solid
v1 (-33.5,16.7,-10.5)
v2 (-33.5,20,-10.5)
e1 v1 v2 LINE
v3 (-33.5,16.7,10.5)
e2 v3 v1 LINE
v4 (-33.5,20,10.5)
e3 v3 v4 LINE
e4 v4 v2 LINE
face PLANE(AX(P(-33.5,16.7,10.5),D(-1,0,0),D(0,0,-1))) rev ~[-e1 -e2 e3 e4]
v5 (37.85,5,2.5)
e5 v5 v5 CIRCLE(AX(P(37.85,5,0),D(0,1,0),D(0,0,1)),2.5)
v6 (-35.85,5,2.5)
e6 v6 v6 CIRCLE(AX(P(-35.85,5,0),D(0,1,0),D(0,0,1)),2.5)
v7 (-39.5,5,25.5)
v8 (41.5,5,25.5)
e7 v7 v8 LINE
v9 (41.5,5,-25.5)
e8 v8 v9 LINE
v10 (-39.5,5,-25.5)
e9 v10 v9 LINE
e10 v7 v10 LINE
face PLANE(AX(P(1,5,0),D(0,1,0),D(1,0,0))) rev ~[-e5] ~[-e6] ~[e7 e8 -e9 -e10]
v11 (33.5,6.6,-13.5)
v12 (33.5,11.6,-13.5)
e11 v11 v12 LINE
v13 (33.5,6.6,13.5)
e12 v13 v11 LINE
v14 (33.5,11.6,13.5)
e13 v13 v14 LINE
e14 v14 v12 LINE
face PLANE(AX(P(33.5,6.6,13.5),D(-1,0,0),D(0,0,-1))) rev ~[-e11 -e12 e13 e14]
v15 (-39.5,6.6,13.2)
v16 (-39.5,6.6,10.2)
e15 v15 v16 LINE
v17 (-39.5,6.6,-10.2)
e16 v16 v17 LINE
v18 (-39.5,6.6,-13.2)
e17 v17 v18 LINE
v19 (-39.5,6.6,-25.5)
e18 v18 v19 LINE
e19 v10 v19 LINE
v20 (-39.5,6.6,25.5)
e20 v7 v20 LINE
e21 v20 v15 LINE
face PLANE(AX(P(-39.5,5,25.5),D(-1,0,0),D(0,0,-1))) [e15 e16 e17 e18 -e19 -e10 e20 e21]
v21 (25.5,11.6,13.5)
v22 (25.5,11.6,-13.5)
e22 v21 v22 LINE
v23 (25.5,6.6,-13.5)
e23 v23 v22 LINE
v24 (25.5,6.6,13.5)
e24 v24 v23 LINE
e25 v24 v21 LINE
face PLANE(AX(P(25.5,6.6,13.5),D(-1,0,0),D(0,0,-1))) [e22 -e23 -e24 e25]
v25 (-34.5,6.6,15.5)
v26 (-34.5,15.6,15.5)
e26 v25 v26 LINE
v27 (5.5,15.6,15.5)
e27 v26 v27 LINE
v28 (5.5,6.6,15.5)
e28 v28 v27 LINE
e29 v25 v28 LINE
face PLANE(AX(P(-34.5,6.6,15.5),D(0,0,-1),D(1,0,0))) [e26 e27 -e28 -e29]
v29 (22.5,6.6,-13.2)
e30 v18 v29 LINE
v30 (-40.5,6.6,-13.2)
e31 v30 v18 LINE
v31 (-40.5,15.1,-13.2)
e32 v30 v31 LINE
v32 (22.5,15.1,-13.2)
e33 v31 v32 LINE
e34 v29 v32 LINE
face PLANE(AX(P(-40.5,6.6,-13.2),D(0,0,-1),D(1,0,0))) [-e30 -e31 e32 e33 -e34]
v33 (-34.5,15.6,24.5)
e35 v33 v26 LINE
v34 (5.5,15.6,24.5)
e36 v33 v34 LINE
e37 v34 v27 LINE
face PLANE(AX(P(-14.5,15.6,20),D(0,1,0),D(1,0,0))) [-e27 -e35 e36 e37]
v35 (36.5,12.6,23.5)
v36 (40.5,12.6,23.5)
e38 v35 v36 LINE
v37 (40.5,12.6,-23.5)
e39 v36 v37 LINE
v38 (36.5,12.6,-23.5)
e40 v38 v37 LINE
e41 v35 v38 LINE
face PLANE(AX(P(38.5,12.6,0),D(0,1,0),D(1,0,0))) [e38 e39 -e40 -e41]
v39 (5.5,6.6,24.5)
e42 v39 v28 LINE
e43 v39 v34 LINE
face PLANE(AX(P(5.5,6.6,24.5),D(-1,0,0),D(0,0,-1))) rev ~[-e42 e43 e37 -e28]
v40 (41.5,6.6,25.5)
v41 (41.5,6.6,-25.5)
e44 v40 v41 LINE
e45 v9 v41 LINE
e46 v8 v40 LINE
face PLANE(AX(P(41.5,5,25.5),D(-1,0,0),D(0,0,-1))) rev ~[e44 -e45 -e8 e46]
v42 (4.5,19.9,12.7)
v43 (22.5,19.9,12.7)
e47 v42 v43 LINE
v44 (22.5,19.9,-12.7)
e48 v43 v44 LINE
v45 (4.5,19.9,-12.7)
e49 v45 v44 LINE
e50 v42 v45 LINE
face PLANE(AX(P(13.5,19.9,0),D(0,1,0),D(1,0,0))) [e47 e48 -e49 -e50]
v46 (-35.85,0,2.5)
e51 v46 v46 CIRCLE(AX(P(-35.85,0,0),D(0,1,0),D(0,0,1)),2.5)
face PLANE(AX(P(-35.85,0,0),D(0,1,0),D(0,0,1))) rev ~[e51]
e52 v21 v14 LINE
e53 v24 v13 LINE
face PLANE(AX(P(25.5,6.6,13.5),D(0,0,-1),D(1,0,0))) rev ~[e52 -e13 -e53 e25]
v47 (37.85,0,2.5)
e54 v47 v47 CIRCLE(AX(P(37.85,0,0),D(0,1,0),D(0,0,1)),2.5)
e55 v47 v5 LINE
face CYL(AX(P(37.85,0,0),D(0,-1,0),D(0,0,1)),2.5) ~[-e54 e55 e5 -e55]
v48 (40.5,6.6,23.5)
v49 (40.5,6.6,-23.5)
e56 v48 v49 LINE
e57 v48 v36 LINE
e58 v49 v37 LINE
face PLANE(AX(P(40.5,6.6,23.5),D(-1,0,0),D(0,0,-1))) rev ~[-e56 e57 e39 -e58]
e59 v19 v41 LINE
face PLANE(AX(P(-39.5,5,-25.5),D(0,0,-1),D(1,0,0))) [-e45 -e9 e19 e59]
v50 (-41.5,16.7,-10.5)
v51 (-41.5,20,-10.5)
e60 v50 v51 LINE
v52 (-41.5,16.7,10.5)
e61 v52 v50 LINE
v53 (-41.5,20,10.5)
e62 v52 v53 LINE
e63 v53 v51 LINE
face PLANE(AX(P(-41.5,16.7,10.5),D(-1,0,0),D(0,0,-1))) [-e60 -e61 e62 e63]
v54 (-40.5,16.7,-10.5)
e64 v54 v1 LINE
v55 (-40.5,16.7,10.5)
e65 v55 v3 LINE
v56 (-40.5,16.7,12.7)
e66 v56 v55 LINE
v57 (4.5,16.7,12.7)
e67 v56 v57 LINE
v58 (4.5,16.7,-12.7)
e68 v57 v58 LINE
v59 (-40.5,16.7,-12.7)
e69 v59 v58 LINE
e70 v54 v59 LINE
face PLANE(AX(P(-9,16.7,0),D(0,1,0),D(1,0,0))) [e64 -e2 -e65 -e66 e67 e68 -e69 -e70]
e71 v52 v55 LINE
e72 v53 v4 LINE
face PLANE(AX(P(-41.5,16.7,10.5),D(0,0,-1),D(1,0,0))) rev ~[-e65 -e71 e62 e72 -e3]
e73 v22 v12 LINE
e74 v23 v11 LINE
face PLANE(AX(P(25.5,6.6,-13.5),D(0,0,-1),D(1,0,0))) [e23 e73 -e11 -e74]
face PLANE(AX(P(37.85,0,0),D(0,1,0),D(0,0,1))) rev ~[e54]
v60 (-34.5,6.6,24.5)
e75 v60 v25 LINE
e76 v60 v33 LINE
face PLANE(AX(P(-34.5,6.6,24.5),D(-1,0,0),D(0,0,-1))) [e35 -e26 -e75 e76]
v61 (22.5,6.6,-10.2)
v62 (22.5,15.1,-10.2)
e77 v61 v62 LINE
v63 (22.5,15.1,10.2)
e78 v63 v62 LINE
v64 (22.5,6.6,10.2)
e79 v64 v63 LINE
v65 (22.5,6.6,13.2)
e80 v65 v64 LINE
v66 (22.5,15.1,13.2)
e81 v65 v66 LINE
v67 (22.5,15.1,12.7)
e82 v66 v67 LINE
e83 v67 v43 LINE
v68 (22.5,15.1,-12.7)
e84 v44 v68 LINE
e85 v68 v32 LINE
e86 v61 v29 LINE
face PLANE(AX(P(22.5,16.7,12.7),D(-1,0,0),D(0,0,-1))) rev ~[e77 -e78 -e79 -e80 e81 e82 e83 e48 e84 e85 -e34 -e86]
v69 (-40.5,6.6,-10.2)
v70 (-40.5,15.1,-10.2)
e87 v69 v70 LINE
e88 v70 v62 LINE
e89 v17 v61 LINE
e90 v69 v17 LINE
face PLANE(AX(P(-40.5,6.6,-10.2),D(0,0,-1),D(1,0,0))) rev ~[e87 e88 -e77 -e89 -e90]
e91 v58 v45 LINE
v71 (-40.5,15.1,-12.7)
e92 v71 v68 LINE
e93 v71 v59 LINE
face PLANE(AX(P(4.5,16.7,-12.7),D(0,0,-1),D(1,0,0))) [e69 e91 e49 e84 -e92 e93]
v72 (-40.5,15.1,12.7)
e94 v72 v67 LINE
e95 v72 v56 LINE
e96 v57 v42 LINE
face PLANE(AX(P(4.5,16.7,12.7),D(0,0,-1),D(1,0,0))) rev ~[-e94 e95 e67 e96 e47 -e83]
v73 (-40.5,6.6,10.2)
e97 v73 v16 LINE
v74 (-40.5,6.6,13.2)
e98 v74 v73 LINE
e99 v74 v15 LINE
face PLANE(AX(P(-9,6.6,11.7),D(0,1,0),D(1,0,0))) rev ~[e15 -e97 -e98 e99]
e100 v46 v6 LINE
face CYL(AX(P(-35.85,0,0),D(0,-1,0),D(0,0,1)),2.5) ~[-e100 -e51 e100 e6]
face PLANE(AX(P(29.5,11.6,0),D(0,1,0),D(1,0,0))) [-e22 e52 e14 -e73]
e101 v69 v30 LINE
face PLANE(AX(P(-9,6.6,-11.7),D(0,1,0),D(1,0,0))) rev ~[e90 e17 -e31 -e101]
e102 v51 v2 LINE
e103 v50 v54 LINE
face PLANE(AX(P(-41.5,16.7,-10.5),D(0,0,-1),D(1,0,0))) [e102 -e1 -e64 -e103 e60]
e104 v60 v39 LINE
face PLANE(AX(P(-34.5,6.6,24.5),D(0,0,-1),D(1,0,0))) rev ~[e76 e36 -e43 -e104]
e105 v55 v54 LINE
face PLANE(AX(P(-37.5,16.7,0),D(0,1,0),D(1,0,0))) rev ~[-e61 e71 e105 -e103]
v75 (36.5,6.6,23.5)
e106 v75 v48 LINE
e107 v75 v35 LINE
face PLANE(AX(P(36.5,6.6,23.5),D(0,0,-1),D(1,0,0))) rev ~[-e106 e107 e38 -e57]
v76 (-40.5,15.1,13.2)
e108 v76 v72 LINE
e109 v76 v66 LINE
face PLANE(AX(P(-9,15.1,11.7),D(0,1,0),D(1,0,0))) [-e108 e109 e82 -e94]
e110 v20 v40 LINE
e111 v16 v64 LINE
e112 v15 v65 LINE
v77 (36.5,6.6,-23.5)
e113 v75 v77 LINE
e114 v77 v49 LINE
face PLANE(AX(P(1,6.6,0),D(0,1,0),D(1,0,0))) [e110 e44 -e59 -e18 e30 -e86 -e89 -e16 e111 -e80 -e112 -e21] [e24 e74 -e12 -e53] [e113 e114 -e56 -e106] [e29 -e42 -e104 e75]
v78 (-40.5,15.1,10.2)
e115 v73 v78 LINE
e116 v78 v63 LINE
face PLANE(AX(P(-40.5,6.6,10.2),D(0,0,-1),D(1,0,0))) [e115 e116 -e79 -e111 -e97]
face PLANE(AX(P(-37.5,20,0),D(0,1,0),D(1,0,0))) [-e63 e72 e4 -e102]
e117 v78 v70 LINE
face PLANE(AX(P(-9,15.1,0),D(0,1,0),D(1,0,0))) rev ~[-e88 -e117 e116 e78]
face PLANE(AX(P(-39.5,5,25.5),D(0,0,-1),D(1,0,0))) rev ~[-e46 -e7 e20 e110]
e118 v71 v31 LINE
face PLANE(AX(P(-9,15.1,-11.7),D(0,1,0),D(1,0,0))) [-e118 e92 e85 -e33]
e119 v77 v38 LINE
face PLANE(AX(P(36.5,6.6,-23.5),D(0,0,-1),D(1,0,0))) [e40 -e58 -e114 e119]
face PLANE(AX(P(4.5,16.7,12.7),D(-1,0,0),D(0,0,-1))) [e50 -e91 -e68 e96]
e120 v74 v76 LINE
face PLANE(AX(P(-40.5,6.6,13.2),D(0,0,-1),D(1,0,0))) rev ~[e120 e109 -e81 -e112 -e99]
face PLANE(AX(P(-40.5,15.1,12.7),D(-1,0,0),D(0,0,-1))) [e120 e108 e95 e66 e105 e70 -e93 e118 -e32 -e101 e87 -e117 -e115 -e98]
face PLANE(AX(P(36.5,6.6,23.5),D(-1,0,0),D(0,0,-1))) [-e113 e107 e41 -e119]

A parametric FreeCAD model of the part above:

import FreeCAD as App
import Part
import Sketcher

doc = App.newDocument("Part")
body = doc.addObject("PartDesign::Body", "Body")

# Sketch on XZ plane
sketch1 = body.newObject("Sketcher::SketchObject", "Sketch")
sketch1.AttachmentSupport = (doc.getObject("XZ_Plane"), [""])
sketch1.MapMode = "FlatFace"
sketch1.addGeometry(Part.Circle(App.Vector(-35.85, 0, 0), App.Vector(0, 0, 1), 2.5), False)
sketch1.addConstraint(Sketcher.Constraint("PointOnObject", 0, 3, -1))
sketch1.addConstraint(Sketcher.Constraint("Diameter", 0, 5.0))
sketch1.addConstraint(Sketcher.Constraint("DistanceX", 0, 3, -1, 1, 35.85))
pad1 = body.newObject("PartDesign::Pad", "Pad")
pad1.Profile = sketch1
pad1.Length = 5
pad1.Reversed = True
body2 = doc.addObject("PartDesign::Body", "Body001")

# Sketch on XZ plane
sketch2 = body2.newObject("Sketcher::SketchObject", "Sketch001")
sketch2.AttachmentSupport = (doc.getObject("XZ_Plane001"), [""])
sketch2.MapMode = "FlatFace"
sketch2.addGeometry(Part.Circle(App.Vector(37.85, 0, 0), App.Vector(0, 0, 1), 2.5), False)
sketch2.addConstraint(Sketcher.Constraint("PointOnObject", 0, 3, -1))
sketch2.addConstraint(Sketcher.Constraint("Diameter", 0, 5.0))
sketch2.addConstraint(Sketcher.Constraint("DistanceX", -1, 1, 0, 3, 37.85))
pad2 = body2.newObject("PartDesign::Pad", "Pad001")
pad2.Profile = sketch2
pad2.Length = 5
pad2.Reversed = True
body.AllowCompound = True
doc.recompute()

boolean = body.newObject("PartDesign::Boolean", "Boolean")
boolean.Type = "Fuse"
boolean.addObjects([body2])

# Sketch on XZ plane
sketch3 = body.newObject("Sketcher::SketchObject", "Sketch002")
sketch3.AttachmentSupport = (doc.getObject("XZ_Plane"), [""])
sketch3.MapMode = "FlatFace"
sketch3.AttachmentOffset = App.Placement(App.Vector(0, 0, -5), App.Rotation())
sketch3.addGeometry(Part.LineSegment(App.Vector(-39.5, -25.5, 0), App.Vector(-39.5, 25.5, 0)), False)
sketch3.addGeometry(Part.LineSegment(App.Vector(-39.5, 25.5, 0), App.Vector(41.5, 25.5, 0)), False)
sketch3.addGeometry(Part.LineSegment(App.Vector(41.5, 25.5, 0), App.Vector(41.5, -25.5, 0)), False)
sketch3.addGeometry(Part.LineSegment(App.Vector(41.5, -25.5, 0), App.Vector(-39.5, -25.5, 0)), False)
sketch3.addConstraint(Sketcher.Constraint("Coincident", 0, 2, 1, 1))
sketch3.addConstraint(Sketcher.Constraint("Coincident", 1, 2, 2, 1))
sketch3.addConstraint(Sketcher.Constraint("Coincident", 2, 2, 3, 1))
sketch3.addConstraint(Sketcher.Constraint("Coincident", 3, 2, 0, 1))
sketch3.addConstraint(Sketcher.Constraint("Vertical", 0))
sketch3.addConstraint(Sketcher.Constraint("Horizontal", 1))
sketch3.addConstraint(Sketcher.Constraint("Vertical", 2))
sketch3.addConstraint(Sketcher.Constraint("Horizontal", 3))
sketch3.addConstraint(Sketcher.Constraint("DistanceX", 1, 1, 1, 2, 81.0))
sketch3.addConstraint(Sketcher.Constraint("DistanceY", 0, 1, 0, 2, 51.0))
sketch3.addConstraint(Sketcher.Constraint("DistanceX", 0, 2, -1, 1, 39.5))
sketch3.addConstraint(Sketcher.Constraint("DistanceY", -1, 1, 0, 2, 25.5))
pad3 = body.newObject("PartDesign::Pad", "Pad002")
pad3.Profile = sketch3
pad3.Length = 1.6
pad3.Reversed = True

# Sketch on XZ plane
sketch4 = body.newObject("Sketcher::SketchObject", "Sketch003")
sketch4.AttachmentSupport = (doc.getObject("XZ_Plane"), [""])
sketch4.MapMode = "FlatFace"
sketch4.AttachmentOffset = App.Placement(App.Vector(0, 0, -6.6), App.Rotation())
sketch4.addGeometry(Part.LineSegment(App.Vector(-40.5, -13.2, 0), App.Vector(-40.5, -10.2, 0)), False)
sketch4.addGeometry(Part.LineSegment(App.Vector(-40.5, -10.2, 0), App.Vector(22.5, -10.2, 0)), False)
sketch4.addGeometry(Part.LineSegment(App.Vector(22.5, -10.2, 0), App.Vector(22.5, -13.2, 0)), False)
sketch4.addGeometry(Part.LineSegment(App.Vector(22.5, -13.2, 0), App.Vector(-40.5, -13.2, 0)), False)
sketch4.addConstraint(Sketcher.Constraint("Coincident", 0, 2, 1, 1))
sketch4.addConstraint(Sketcher.Constraint("Coincident", 1, 2, 2, 1))
sketch4.addConstraint(Sketcher.Constraint("Coincident", 2, 2, 3, 1))
sketch4.addConstraint(Sketcher.Constraint("Coincident", 3, 2, 0, 1))
sketch4.addConstraint(Sketcher.Constraint("Vertical", 0))
sketch4.addConstraint(Sketcher.Constraint("Horizontal", 1))
sketch4.addConstraint(Sketcher.Constraint("Vertical", 2))
sketch4.addConstraint(Sketcher.Constraint("Horizontal", 3))
sketch4.addConstraint(Sketcher.Constraint("DistanceX", 1, 1, 1, 2, 63.0))
sketch4.addConstraint(Sketcher.Constraint("DistanceY", 0, 1, 0, 2, 3.0))
sketch4.addConstraint(Sketcher.Constraint("DistanceX", 0, 2, -1, 1, 40.5))
sketch4.addConstraint(Sketcher.Constraint("DistanceY", 0, 2, -1, 1, 10.2))
pad4 = body.newObject("PartDesign::Pad", "Pad003")
pad4.Profile = sketch4
pad4.Length = 8.5
pad4.Reversed = True

# Sketch on XZ plane
sketch5 = body.newObject("Sketcher::SketchObject", "Sketch004")
sketch5.AttachmentSupport = (doc.getObject("XZ_Plane"), [""])
sketch5.MapMode = "FlatFace"
sketch5.AttachmentOffset = App.Placement(App.Vector(0, 0, -6.6), App.Rotation())
sketch5.addGeometry(Part.LineSegment(App.Vector(-40.5, 10.2, 0), App.Vector(-40.5, 13.2, 0)), False)
sketch5.addGeometry(Part.LineSegment(App.Vector(-40.5, 13.2, 0), App.Vector(22.5, 13.2, 0)), False)
sketch5.addGeometry(Part.LineSegment(App.Vector(22.5, 13.2, 0), App.Vector(22.5, 10.2, 0)), False)
sketch5.addGeometry(Part.LineSegment(App.Vector(22.5, 10.2, 0), App.Vector(-40.5, 10.2, 0)), False)
sketch5.addConstraint(Sketcher.Constraint("Coincident", 0, 2, 1, 1))
sketch5.addConstraint(Sketcher.Constraint("Coincident", 1, 2, 2, 1))
sketch5.addConstraint(Sketcher.Constraint("Coincident", 2, 2, 3, 1))
sketch5.addConstraint(Sketcher.Constraint("Coincident", 3, 2, 0, 1))
sketch5.addConstraint(Sketcher.Constraint("Vertical", 0))
sketch5.addConstraint(Sketcher.Constraint("Horizontal", 1))
sketch5.addConstraint(Sketcher.Constraint("Vertical", 2))
sketch5.addConstraint(Sketcher.Constraint("Horizontal", 3))
sketch5.addConstraint(Sketcher.Constraint("DistanceX", 1, 1, 1, 2, 63.0))
sketch5.addConstraint(Sketcher.Constraint("DistanceY", 0, 1, 0, 2, 3.0))
sketch5.addConstraint(Sketcher.Constraint("DistanceX", 0, 2, -1, 1, 40.5))
sketch5.addConstraint(Sketcher.Constraint("DistanceY", -1, 1, 0, 2, 13.2))
pad5 = body.newObject("PartDesign::Pad", "Pad004")
pad5.Profile = sketch5
pad5.Length = 8.5
pad5.Reversed = True

# Sketch on XZ plane
sketch6 = body.newObject("Sketcher::SketchObject", "Sketch005")
sketch6.AttachmentSupport = (doc.getObject("XZ_Plane"), [""])
sketch6.MapMode = "FlatFace"
sketch6.AttachmentOffset = App.Placement(App.Vector(0, 0, -15.1), App.Rotation())
sketch6.addGeometry(Part.LineSegment(App.Vector(-40.5, -12.7, 0), App.Vector(-40.5, 12.7, 0)), False)
sketch6.addGeometry(Part.LineSegment(App.Vector(-40.5, 12.7, 0), App.Vector(22.5, 12.7, 0)), False)
sketch6.addGeometry(Part.LineSegment(App.Vector(22.5, 12.7, 0), App.Vector(22.5, -12.7, 0)), False)
sketch6.addGeometry(Part.LineSegment(App.Vector(22.5, -12.7, 0), App.Vector(-40.5, -12.7, 0)), False)
sketch6.addConstraint(Sketcher.Constraint("Coincident", 0, 2, 1, 1))
sketch6.addConstraint(Sketcher.Constraint("Coincident", 1, 2, 2, 1))
sketch6.addConstraint(Sketcher.Constraint("Coincident", 2, 2, 3, 1))
sketch6.addConstraint(Sketcher.Constraint("Coincident", 3, 2, 0, 1))
sketch6.addConstraint(Sketcher.Constraint("Vertical", 0))
sketch6.addConstraint(Sketcher.Constraint("Horizontal", 1))
sketch6.addConstraint(Sketcher.Constraint("Vertical", 2))
sketch6.addConstraint(Sketcher.Constraint("Horizontal", 3))
sketch6.addConstraint(Sketcher.Constraint("DistanceX", 1, 1, 1, 2, 63.0))
sketch6.addConstraint(Sketcher.Constraint("DistanceY", 0, 1, 0, 2, 25.4))
sketch6.addConstraint(Sketcher.Constraint("DistanceX", 0, 2, -1, 1, 40.5))
sketch6.addConstraint(Sketcher.Constraint("DistanceY", -1, 1, 0, 2, 12.7))
pad6 = body.newObject("PartDesign::Pad", "Pad005")
pad6.Profile = sketch6
pad6.Length = 1.6
pad6.Reversed = True

# Sketch on XZ plane
sketch7 = body.newObject("Sketcher::SketchObject", "Sketch006")
sketch7.AttachmentSupport = (doc.getObject("XZ_Plane"), [""])
sketch7.MapMode = "FlatFace"
sketch7.AttachmentOffset = App.Placement(App.Vector(0, 0, -16.7), App.Rotation())
sketch7.addGeometry(Part.LineSegment(App.Vector(4.5, -12.7, 0), App.Vector(4.5, 12.7, 0)), False)
sketch7.addGeometry(Part.LineSegment(App.Vector(4.5, 12.7, 0), App.Vector(22.5, 12.7, 0)), False)
sketch7.addGeometry(Part.LineSegment(App.Vector(22.5, 12.7, 0), App.Vector(22.5, -12.7, 0)), False)
sketch7.addGeometry(Part.LineSegment(App.Vector(22.5, -12.7, 0), App.Vector(4.5, -12.7, 0)), False)
sketch7.addConstraint(Sketcher.Constraint("Coincident", 0, 2, 1, 1))
sketch7.addConstraint(Sketcher.Constraint("Coincident", 1, 2, 2, 1))
sketch7.addConstraint(Sketcher.Constraint("Coincident", 2, 2, 3, 1))
sketch7.addConstraint(Sketcher.Constraint("Coincident", 3, 2, 0, 1))
sketch7.addConstraint(Sketcher.Constraint("Vertical", 0))
sketch7.addConstraint(Sketcher.Constraint("Horizontal", 1))
sketch7.addConstraint(Sketcher.Constraint("Vertical", 2))
sketch7.addConstraint(Sketcher.Constraint("Horizontal", 3))
sketch7.addConstraint(Sketcher.Constraint("DistanceX", 1, 1, 1, 2, 18.0))
sketch7.addConstraint(Sketcher.Constraint("DistanceY", 0, 1, 0, 2, 25.4))
sketch7.addConstraint(Sketcher.Constraint("DistanceX", -1, 1, 0, 2, 4.5))
sketch7.addConstraint(Sketcher.Constraint("DistanceY", -1, 1, 0, 2, 12.7))
pad7 = body.newObject("PartDesign::Pad", "Pad006")
pad7.Profile = sketch7
pad7.Length = 3.2
pad7.Reversed = True

# Sketch on XZ plane
sketch8 = body.newObject("Sketcher::SketchObject", "Sketch007")
sketch8.AttachmentSupport = (doc.getObject("XZ_Plane"), [""])
sketch8.MapMode = "FlatFace"
sketch8.AttachmentOffset = App.Placement(App.Vector(0, 0, -16.7), App.Rotation())
sketch8.addGeometry(Part.LineSegment(App.Vector(-41.5, -10.5, 0), App.Vector(-41.5, 10.5, 0)), False)
sketch8.addGeometry(Part.LineSegment(App.Vector(-41.5, 10.5, 0), App.Vector(-33.5, 10.5, 0)), False)
sketch8.addGeometry(Part.LineSegment(App.Vector(-33.5, 10.5, 0), App.Vector(-33.5, -10.5, 0)), False)
sketch8.addGeometry(Part.LineSegment(App.Vector(-33.5, -10.5, 0), App.Vector(-41.5, -10.5, 0)), False)
sketch8.addConstraint(Sketcher.Constraint("Coincident", 0, 2, 1, 1))
sketch8.addConstraint(Sketcher.Constraint("Coincident", 1, 2, 2, 1))
sketch8.addConstraint(Sketcher.Constraint("Coincident", 2, 2, 3, 1))
sketch8.addConstraint(Sketcher.Constraint("Coincident", 3, 2, 0, 1))
sketch8.addConstraint(Sketcher.Constraint("Vertical", 0))
sketch8.addConstraint(Sketcher.Constraint("Horizontal", 1))
sketch8.addConstraint(Sketcher.Constraint("Vertical", 2))
sketch8.addConstraint(Sketcher.Constraint("Horizontal", 3))
sketch8.addConstraint(Sketcher.Constraint("DistanceX", 1, 1, 1, 2, 8.0))
sketch8.addConstraint(Sketcher.Constraint("DistanceY", 0, 1, 0, 2, 21.0))
sketch8.addConstraint(Sketcher.Constraint("DistanceX", 0, 2, -1, 1, 41.5))
sketch8.addConstraint(Sketcher.Constraint("DistanceY", -1, 1, 0, 2, 10.5))
pad8 = body.newObject("PartDesign::Pad", "Pad007")
pad8.Profile = sketch8
pad8.Length = 3.3
pad8.Reversed = True

# Sketch on XZ plane
sketch9 = body.newObject("Sketcher::SketchObject", "Sketch008")
sketch9.AttachmentSupport = (doc.getObject("XZ_Plane"), [""])
sketch9.MapMode = "FlatFace"
sketch9.AttachmentOffset = App.Placement(App.Vector(0, 0, -6.6), App.Rotation())
sketch9.addGeometry(Part.LineSegment(App.Vector(25.5, -13.5, 0), App.Vector(25.5, 13.5, 0)), False)
sketch9.addGeometry(Part.LineSegment(App.Vector(25.5, 13.5, 0), App.Vector(33.5, 13.5, 0)), False)
sketch9.addGeometry(Part.LineSegment(App.Vector(33.5, 13.5, 0), App.Vector(33.5, -13.5, 0)), False)
sketch9.addGeometry(Part.LineSegment(App.Vector(33.5, -13.5, 0), App.Vector(25.5, -13.5, 0)), False)
sketch9.addConstraint(Sketcher.Constraint("Coincident", 0, 2, 1, 1))
sketch9.addConstraint(Sketcher.Constraint("Coincident", 1, 2, 2, 1))
sketch9.addConstraint(Sketcher.Constraint("Coincident", 2, 2, 3, 1))
sketch9.addConstraint(Sketcher.Constraint("Coincident", 3, 2, 0, 1))
sketch9.addConstraint(Sketcher.Constraint("Vertical", 0))
sketch9.addConstraint(Sketcher.Constraint("Horizontal", 1))
sketch9.addConstraint(Sketcher.Constraint("Vertical", 2))
sketch9.addConstraint(Sketcher.Constraint("Horizontal", 3))
sketch9.addConstraint(Sketcher.Constraint("DistanceX", 1, 1, 1, 2, 8.0))
sketch9.addConstraint(Sketcher.Constraint("DistanceY", 0, 1, 0, 2, 27.0))
sketch9.addConstraint(Sketcher.Constraint("DistanceX", -1, 1, 0, 2, 25.5))
sketch9.addConstraint(Sketcher.Constraint("DistanceY", -1, 1, 0, 2, 13.5))
pad9 = body.newObject("PartDesign::Pad", "Pad008")
pad9.Profile = sketch9
pad9.Length = 5
pad9.Reversed = True

# Sketch on XZ plane
sketch10 = body.newObject("Sketcher::SketchObject", "Sketch009")
sketch10.AttachmentSupport = (doc.getObject("XZ_Plane"), [""])
sketch10.MapMode = "FlatFace"
sketch10.AttachmentOffset = App.Placement(App.Vector(0, 0, -6.6), App.Rotation())
sketch10.addGeometry(Part.LineSegment(App.Vector(36.5, -23.5, 0), App.Vector(36.5, 23.5, 0)), False)
sketch10.addGeometry(Part.LineSegment(App.Vector(36.5, 23.5, 0), App.Vector(40.5, 23.5, 0)), False)
sketch10.addGeometry(Part.LineSegment(App.Vector(40.5, 23.5, 0), App.Vector(40.5, -23.5, 0)), False)
sketch10.addGeometry(Part.LineSegment(App.Vector(40.5, -23.5, 0), App.Vector(36.5, -23.5, 0)), False)
sketch10.addConstraint(Sketcher.Constraint("Coincident", 0, 2, 1, 1))
sketch10.addConstraint(Sketcher.Constraint("Coincident", 1, 2, 2, 1))
sketch10.addConstraint(Sketcher.Constraint("Coincident", 2, 2, 3, 1))
sketch10.addConstraint(Sketcher.Constraint("Coincident", 3, 2, 0, 1))
sketch10.addConstraint(Sketcher.Constraint("Vertical", 0))
sketch10.addConstraint(Sketcher.Constraint("Horizontal", 1))
sketch10.addConstraint(Sketcher.Constraint("Vertical", 2))
sketch10.addConstraint(Sketcher.Constraint("Horizontal", 3))
sketch10.addConstraint(Sketcher.Constraint("DistanceX", 1, 1, 1, 2, 4.0))
sketch10.addConstraint(Sketcher.Constraint("DistanceY", 0, 1, 0, 2, 47.0))
sketch10.addConstraint(Sketcher.Constraint("DistanceX", -1, 1, 0, 2, 36.5))
sketch10.addConstraint(Sketcher.Constraint("DistanceY", -1, 1, 0, 2, 23.5))
pad10 = body.newObject("PartDesign::Pad", "Pad009")
pad10.Profile = sketch10
pad10.Length = 6
pad10.Reversed = True

# Sketch on XZ plane
sketch11 = body.newObject("Sketcher::SketchObject", "Sketch010")
sketch11.AttachmentSupport = (doc.getObject("XZ_Plane"), [""])
sketch11.MapMode = "FlatFace"
sketch11.AttachmentOffset = App.Placement(App.Vector(0, 0, -6.6), App.Rotation())
sketch11.addGeometry(Part.LineSegment(App.Vector(-34.5, 15.5, 0), App.Vector(-34.5, 24.5, 0)), False)
sketch11.addGeometry(Part.LineSegment(App.Vector(-34.5, 24.5, 0), App.Vector(5.5, 24.5, 0)), False)
sketch11.addGeometry(Part.LineSegment(App.Vector(5.5, 24.5, 0), App.Vector(5.5, 15.5, 0)), False)
sketch11.addGeometry(Part.LineSegment(App.Vector(5.5, 15.5, 0), App.Vector(-34.5, 15.5, 0)), False)
sketch11.addConstraint(Sketcher.Constraint("Coincident", 0, 2, 1, 1))
sketch11.addConstraint(Sketcher.Constraint("Coincident", 1, 2, 2, 1))
sketch11.addConstraint(Sketcher.Constraint("Coincident", 2, 2, 3, 1))
sketch11.addConstraint(Sketcher.Constraint("Coincident", 3, 2, 0, 1))
sketch11.addConstraint(Sketcher.Constraint("Vertical", 0))
sketch11.addConstraint(Sketcher.Constraint("Horizontal", 1))
sketch11.addConstraint(Sketcher.Constraint("Vertical", 2))
sketch11.addConstraint(Sketcher.Constraint("Horizontal", 3))
sketch11.addConstraint(Sketcher.Constraint("DistanceX", 1, 1, 1, 2, 40.0))
sketch11.addConstraint(Sketcher.Constraint("DistanceY", 0, 1, 0, 2, 9.0))
sketch11.addConstraint(Sketcher.Constraint("DistanceX", 0, 2, -1, 1, 34.5))
sketch11.addConstraint(Sketcher.Constraint("DistanceY", -1, 1, 0, 2, 24.5))
pad11 = body.newObject("PartDesign::Pad", "Pad010")
pad11.Profile = sketch11
pad11.Length = 9
pad11.Reversed = True

doc.recompute()
